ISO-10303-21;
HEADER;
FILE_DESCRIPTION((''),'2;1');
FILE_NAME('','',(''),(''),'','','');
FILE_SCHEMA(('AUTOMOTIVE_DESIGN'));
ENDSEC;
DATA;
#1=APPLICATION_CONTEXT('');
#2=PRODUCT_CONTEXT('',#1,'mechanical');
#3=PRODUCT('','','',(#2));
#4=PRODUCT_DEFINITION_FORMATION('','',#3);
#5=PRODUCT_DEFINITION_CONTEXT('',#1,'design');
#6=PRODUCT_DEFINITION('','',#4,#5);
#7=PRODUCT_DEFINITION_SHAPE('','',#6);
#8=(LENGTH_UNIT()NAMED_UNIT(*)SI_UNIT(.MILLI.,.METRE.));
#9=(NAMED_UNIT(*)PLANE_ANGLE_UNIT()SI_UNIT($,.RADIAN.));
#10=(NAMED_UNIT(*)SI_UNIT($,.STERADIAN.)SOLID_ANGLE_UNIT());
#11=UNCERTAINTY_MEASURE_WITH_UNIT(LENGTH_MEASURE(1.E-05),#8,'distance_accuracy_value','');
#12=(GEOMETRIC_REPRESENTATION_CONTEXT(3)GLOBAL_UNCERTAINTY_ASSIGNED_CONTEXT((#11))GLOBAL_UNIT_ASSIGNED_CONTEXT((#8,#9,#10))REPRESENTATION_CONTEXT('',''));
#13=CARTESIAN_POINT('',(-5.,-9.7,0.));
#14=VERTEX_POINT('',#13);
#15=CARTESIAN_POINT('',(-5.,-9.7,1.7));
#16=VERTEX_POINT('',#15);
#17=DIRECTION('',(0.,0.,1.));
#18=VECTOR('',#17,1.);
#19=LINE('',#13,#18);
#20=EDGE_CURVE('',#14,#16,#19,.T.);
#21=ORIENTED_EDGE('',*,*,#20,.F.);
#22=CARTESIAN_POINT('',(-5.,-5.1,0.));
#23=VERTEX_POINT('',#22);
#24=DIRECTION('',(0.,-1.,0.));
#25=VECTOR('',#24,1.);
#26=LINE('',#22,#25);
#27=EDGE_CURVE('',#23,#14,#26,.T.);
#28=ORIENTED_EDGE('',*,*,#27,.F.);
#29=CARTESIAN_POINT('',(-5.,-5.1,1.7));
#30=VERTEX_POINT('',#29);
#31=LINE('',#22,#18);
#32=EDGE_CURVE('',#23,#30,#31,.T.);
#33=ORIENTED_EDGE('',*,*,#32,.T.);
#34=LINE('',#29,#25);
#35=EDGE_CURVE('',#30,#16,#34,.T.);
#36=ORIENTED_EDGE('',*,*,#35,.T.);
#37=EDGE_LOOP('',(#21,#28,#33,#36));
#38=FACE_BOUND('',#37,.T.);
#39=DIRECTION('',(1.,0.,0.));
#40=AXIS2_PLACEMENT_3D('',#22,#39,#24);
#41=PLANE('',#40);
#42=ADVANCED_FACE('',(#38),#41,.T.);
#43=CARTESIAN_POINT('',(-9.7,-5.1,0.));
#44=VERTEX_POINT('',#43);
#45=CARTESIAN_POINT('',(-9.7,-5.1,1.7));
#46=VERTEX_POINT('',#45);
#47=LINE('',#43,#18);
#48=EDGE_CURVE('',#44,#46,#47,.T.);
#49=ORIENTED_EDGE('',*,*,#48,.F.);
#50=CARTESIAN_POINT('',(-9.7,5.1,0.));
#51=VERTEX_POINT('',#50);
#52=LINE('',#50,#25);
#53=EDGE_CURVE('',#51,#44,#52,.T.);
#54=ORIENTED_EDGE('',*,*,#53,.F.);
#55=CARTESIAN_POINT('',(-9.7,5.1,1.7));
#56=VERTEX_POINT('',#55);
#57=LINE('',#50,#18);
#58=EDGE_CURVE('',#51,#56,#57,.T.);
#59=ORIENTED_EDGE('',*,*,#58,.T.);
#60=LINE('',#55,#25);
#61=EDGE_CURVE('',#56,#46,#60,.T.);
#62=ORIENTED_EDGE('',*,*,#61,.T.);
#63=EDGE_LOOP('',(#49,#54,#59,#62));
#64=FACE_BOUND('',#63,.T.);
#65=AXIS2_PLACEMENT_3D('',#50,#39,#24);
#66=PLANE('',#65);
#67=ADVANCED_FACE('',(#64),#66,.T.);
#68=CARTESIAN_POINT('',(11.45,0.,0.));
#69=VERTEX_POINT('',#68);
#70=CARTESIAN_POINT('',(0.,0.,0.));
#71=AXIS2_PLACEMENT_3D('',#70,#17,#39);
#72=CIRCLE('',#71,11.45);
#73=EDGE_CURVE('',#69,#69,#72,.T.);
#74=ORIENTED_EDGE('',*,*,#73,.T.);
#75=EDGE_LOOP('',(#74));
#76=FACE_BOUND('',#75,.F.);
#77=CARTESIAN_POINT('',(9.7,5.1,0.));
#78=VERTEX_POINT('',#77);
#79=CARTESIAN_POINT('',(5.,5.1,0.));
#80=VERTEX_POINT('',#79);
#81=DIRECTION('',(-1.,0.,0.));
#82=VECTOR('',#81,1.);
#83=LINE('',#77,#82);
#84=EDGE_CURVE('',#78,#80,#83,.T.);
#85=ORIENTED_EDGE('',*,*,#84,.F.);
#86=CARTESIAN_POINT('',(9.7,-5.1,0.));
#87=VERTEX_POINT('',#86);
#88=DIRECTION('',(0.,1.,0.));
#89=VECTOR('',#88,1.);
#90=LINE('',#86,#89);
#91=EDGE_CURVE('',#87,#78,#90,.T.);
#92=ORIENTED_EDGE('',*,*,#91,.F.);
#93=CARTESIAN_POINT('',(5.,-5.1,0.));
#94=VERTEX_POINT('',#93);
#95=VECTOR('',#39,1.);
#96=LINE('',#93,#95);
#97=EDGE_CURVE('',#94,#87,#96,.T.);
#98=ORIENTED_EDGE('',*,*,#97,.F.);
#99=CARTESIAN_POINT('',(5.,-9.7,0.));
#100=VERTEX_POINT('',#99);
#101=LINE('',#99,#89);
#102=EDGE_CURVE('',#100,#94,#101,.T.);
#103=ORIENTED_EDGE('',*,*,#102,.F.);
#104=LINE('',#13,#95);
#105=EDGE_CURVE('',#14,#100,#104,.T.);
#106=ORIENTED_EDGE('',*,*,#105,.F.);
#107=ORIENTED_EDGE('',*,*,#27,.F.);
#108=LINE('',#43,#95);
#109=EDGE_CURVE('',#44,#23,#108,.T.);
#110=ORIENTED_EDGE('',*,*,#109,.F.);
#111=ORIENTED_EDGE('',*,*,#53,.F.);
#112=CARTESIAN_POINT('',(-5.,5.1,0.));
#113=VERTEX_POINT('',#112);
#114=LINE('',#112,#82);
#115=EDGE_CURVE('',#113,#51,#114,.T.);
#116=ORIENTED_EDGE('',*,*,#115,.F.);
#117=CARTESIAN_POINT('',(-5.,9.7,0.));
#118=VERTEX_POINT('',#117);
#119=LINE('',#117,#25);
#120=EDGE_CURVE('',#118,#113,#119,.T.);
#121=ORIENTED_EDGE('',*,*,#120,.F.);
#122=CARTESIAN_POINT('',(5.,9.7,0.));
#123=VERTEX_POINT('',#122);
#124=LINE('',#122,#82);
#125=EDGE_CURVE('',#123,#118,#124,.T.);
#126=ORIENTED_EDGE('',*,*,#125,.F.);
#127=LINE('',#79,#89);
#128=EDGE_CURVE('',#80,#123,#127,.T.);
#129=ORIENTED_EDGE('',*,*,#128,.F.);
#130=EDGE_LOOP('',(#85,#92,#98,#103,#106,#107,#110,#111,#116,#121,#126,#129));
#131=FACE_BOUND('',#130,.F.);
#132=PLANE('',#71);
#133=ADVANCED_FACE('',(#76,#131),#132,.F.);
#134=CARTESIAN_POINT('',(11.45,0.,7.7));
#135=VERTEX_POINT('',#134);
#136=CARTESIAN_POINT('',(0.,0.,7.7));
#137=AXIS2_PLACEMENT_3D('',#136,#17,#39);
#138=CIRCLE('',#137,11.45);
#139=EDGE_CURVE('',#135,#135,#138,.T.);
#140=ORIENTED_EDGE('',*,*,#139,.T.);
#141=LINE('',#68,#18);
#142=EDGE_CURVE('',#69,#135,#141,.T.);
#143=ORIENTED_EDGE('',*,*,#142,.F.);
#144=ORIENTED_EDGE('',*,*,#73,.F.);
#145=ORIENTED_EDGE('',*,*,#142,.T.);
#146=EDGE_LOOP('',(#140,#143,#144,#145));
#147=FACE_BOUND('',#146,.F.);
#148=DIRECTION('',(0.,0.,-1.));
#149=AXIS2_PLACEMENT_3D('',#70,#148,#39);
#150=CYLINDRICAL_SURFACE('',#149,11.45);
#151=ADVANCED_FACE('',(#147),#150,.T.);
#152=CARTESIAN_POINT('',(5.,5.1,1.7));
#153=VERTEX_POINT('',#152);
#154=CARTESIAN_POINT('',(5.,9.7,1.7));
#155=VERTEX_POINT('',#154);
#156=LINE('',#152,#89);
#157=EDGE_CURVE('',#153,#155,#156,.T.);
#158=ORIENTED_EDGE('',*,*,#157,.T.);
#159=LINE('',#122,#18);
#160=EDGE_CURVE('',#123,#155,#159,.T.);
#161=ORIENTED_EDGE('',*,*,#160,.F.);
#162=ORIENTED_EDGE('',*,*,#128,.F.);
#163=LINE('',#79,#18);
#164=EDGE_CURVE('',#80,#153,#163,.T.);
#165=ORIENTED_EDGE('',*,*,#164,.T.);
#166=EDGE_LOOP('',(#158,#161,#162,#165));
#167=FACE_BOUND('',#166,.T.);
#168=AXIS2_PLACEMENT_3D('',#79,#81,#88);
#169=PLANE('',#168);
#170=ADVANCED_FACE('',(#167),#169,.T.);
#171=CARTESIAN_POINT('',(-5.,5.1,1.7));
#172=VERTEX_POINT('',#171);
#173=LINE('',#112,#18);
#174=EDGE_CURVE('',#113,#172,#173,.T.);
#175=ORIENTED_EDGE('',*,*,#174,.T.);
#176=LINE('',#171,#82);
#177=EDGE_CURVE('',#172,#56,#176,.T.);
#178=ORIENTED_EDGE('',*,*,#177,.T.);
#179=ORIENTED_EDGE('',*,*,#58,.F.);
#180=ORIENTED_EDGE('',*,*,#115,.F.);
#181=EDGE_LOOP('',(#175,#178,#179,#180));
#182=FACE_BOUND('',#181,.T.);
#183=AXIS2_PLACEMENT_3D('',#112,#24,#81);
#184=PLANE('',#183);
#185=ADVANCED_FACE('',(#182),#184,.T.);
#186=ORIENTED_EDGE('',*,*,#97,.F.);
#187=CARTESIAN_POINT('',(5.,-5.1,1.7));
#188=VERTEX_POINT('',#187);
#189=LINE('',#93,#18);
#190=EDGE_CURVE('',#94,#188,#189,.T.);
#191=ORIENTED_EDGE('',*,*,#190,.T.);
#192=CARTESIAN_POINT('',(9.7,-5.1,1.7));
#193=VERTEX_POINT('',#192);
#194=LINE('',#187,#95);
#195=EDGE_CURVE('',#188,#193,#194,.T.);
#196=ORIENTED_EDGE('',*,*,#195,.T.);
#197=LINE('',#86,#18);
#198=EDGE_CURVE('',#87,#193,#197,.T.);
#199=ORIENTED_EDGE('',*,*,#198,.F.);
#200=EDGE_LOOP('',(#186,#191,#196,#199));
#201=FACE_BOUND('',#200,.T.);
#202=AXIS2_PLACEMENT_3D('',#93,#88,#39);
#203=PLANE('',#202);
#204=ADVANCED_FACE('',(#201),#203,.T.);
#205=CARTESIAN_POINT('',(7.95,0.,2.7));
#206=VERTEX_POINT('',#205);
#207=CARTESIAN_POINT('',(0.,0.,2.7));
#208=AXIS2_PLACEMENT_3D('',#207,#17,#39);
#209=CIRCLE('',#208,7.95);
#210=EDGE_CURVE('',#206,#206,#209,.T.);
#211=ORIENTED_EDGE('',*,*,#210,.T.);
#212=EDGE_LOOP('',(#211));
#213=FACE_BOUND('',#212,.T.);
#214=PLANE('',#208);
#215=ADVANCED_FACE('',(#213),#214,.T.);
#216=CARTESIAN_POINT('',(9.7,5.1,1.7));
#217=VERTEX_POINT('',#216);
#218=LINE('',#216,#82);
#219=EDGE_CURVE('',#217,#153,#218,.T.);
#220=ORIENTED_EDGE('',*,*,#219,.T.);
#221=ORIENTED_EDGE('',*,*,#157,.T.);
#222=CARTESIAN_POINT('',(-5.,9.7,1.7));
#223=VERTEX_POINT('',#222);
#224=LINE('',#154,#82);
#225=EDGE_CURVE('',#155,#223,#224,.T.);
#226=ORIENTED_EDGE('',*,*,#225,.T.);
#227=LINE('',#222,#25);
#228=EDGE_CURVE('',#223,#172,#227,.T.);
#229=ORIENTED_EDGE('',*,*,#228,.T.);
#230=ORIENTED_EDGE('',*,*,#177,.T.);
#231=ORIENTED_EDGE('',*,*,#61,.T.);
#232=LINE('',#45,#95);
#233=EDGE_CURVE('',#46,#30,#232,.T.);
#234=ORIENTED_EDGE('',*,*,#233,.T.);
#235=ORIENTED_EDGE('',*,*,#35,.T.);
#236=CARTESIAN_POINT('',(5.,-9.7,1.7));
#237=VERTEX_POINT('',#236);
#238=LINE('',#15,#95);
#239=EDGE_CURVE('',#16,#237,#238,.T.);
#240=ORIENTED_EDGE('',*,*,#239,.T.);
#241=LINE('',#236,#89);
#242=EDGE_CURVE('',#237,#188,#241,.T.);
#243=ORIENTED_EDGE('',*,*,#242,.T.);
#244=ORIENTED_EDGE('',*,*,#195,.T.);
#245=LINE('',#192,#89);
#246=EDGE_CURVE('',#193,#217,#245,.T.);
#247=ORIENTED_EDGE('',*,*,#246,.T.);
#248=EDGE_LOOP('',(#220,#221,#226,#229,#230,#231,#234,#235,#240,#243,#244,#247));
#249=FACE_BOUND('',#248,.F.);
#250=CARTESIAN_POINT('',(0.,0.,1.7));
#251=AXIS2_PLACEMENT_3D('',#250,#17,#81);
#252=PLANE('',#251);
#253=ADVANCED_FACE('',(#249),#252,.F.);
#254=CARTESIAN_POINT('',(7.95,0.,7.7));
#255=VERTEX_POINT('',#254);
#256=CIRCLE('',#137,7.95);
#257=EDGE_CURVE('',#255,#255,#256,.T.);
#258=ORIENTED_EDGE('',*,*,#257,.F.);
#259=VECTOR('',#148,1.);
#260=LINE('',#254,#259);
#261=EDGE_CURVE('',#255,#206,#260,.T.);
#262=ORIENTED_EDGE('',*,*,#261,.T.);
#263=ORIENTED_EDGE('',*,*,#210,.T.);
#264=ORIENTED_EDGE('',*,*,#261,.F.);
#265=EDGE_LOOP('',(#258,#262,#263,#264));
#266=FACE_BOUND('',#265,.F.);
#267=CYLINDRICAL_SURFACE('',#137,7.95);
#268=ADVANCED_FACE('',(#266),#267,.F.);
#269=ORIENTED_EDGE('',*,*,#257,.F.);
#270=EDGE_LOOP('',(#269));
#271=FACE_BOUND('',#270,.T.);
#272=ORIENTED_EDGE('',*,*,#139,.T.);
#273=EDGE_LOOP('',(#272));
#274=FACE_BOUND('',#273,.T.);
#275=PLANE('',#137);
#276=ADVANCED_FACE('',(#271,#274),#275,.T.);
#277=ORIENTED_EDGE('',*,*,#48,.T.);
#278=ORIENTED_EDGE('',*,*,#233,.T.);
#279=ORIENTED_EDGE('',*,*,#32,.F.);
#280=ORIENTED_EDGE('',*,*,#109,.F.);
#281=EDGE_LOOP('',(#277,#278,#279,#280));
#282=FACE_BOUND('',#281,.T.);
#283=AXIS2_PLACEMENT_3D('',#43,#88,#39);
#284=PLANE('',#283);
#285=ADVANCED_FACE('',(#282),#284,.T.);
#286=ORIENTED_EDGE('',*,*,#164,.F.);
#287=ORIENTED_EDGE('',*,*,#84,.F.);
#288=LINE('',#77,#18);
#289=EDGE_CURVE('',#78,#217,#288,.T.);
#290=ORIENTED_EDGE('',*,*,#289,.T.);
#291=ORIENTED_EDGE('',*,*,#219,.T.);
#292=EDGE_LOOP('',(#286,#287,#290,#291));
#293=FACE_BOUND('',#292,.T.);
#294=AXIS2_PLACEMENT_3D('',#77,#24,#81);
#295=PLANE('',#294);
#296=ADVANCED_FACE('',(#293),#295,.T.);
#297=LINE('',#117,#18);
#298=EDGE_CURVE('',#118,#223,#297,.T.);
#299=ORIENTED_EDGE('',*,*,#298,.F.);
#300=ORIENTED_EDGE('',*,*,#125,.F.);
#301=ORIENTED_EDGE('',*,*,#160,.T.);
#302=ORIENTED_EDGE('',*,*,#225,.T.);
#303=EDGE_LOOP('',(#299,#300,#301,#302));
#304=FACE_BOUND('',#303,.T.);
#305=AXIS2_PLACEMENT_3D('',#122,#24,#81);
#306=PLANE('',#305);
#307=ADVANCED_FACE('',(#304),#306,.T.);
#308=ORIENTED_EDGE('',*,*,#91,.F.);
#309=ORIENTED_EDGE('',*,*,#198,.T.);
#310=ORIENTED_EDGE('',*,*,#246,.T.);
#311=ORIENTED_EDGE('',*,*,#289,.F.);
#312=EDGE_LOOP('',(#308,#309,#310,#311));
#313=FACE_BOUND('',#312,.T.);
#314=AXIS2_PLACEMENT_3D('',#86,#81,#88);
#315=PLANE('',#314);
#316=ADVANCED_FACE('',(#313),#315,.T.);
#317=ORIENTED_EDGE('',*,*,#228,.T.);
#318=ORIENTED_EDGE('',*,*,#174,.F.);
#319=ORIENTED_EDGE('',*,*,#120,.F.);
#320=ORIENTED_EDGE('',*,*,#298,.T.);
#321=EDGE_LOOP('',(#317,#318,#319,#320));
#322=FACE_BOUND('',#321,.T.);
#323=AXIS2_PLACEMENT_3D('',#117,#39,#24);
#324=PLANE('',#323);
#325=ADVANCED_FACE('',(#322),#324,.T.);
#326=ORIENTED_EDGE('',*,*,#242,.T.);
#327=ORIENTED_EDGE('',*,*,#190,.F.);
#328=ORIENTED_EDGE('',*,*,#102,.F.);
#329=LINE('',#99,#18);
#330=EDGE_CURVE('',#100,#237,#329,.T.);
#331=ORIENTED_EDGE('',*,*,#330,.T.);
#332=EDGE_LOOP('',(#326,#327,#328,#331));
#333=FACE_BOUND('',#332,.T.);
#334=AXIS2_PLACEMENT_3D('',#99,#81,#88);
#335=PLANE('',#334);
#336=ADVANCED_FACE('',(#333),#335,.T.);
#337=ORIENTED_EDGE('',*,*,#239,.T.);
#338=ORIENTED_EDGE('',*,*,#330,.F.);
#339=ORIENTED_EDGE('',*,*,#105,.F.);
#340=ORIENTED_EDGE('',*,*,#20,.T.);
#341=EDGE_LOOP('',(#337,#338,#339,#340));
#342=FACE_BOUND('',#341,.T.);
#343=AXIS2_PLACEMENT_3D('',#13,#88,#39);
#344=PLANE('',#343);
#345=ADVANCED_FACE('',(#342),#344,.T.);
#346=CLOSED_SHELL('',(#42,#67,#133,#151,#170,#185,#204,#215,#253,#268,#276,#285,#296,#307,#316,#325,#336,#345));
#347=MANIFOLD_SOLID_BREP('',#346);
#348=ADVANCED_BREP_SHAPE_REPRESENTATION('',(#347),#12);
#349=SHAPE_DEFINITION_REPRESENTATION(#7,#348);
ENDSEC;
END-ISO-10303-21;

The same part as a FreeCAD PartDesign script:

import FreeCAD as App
import Part
import Sketcher
from FreeCAD import Vector


def add_polygon(sketch, points):
    """Adds a closed chain of lines whose ends are joined by coincident constraints."""
    first, n = sketch.GeometryCount, len(points)
    for a, b in zip(points, points[1:] + points[:1]):
        sketch.addGeometry(Part.LineSegment(App.Vector(*a, 0), App.Vector(*b, 0)), False)
    for i in range(n):
        sketch.addConstraint(Sketcher.Constraint("Coincident", first + i, 2, first + (i + 1) % n, 1))

doc = App.newDocument("Part")
body = doc.addObject("PartDesign::Body", "Body")

sketch1 = doc.addObject("Sketcher::SketchObject", "Sketch")
body.addObject(sketch1)
sketch1.AttachmentSupport = (doc.XY_Plane, [""])
sketch1.MapMode = "FlatFace"
sketch1.addGeometry(Part.Circle(Vector(0, 0, 0), Vector(0, 0, 1), 11), False)
sketch1.addConstraint([
    Sketcher.Constraint("Coincident", 0, 3, -1, 1),
    Sketcher.Constraint("Diameter", 0, 22.9),
])
pad1 = doc.addObject("PartDesign::Pad", "Pad")
body.addObject(pad1)
pad1.Profile = sketch1
pad1.Length = 7.7

sketch2 = doc.addObject("Sketcher::SketchObject", "Sketch001")
body.addObject(sketch2)
sketch2.AttachmentSupport = (doc.XY_Plane, [""])
sketch2.MapMode = "FlatFace"
sketch2.AttachmentOffset = App.Placement(Vector(0, 0, 7.7), App.Rotation())
sketch2.addGeometry(Part.Circle(Vector(0, 0, 0), Vector(0, 0, 1), 8), False)
sketch2.addConstraint([
    Sketcher.Constraint("Coincident", 0, 3, -1, 1),
    Sketcher.Constraint("Diameter", 0, 15.9),
])
pocket1 = doc.addObject("PartDesign::Pocket", "Pocket")
body.addObject(pocket1)
pocket1.Profile = sketch2
pocket1.Length = 5

sketch3 = doc.addObject("Sketcher::SketchObject", "Sketch002")
body.addObject(sketch3)
sketch3.AttachmentSupport = (doc.XY_Plane, [""])
sketch3.MapMode = "FlatFace"
add_polygon(sketch3, [(-5, -5.1), (-9.7, -5.1), (-9.7, 5.1), (-5, 5.1), (-5, 9.7), (5, 9.7), (5, 5.1), (9.7, 5.1), (9.7, -5.1), (5, -5.1), (5, -9.7), (-5, -9.7)])
sketch3.addConstraint([
    Sketcher.Constraint("Horizontal", 0),
    Sketcher.Constraint("Vertical", 1),
    Sketcher.Constraint("Horizontal", 2),
    Sketcher.Constraint("Vertical", 3),
    Sketcher.Constraint("Horizontal", 4),
    Sketcher.Constraint("Vertical", 5),
    Sketcher.Constraint("Horizontal", 6),
    Sketcher.Constraint("Vertical", 7),
    Sketcher.Constraint("Horizontal", 8),
    Sketcher.Constraint("Vertical", 9),
    Sketcher.Constraint("Horizontal", 10),
    Sketcher.Constraint("Vertical", 11),
    Sketcher.Constraint("Symmetric", 0, 2, 6, 2, -1, 1),
    Sketcher.Constraint("Symmetric", 2, 2, 8, 2, -1, 1),
    Sketcher.Constraint("Symmetric", 4, 2, 10, 2, -1, 1),
    Sketcher.Constraint("Symmetric", 2, 2, 5, 2, -2),
    Sketcher.Constraint("DistanceX", 4, 1, 4, 2, 10.0),
    Sketcher.Constraint("DistanceX", 0, 2, 0, 1, 4.7),
    Sketcher.Constraint("DistanceY", 1, 1, 1, 2, 10.2),
    Sketcher.Constraint("DistanceY", 3, 1, 3, 2, 4.6),
])
pocket2 = doc.addObject("PartDesign::Pocket", "Pocket001")
body.addObject(pocket2)
pocket2.Profile = sketch3
pocket2.Length = 1.7
pocket2.Reversed = True

doc.recompute()
